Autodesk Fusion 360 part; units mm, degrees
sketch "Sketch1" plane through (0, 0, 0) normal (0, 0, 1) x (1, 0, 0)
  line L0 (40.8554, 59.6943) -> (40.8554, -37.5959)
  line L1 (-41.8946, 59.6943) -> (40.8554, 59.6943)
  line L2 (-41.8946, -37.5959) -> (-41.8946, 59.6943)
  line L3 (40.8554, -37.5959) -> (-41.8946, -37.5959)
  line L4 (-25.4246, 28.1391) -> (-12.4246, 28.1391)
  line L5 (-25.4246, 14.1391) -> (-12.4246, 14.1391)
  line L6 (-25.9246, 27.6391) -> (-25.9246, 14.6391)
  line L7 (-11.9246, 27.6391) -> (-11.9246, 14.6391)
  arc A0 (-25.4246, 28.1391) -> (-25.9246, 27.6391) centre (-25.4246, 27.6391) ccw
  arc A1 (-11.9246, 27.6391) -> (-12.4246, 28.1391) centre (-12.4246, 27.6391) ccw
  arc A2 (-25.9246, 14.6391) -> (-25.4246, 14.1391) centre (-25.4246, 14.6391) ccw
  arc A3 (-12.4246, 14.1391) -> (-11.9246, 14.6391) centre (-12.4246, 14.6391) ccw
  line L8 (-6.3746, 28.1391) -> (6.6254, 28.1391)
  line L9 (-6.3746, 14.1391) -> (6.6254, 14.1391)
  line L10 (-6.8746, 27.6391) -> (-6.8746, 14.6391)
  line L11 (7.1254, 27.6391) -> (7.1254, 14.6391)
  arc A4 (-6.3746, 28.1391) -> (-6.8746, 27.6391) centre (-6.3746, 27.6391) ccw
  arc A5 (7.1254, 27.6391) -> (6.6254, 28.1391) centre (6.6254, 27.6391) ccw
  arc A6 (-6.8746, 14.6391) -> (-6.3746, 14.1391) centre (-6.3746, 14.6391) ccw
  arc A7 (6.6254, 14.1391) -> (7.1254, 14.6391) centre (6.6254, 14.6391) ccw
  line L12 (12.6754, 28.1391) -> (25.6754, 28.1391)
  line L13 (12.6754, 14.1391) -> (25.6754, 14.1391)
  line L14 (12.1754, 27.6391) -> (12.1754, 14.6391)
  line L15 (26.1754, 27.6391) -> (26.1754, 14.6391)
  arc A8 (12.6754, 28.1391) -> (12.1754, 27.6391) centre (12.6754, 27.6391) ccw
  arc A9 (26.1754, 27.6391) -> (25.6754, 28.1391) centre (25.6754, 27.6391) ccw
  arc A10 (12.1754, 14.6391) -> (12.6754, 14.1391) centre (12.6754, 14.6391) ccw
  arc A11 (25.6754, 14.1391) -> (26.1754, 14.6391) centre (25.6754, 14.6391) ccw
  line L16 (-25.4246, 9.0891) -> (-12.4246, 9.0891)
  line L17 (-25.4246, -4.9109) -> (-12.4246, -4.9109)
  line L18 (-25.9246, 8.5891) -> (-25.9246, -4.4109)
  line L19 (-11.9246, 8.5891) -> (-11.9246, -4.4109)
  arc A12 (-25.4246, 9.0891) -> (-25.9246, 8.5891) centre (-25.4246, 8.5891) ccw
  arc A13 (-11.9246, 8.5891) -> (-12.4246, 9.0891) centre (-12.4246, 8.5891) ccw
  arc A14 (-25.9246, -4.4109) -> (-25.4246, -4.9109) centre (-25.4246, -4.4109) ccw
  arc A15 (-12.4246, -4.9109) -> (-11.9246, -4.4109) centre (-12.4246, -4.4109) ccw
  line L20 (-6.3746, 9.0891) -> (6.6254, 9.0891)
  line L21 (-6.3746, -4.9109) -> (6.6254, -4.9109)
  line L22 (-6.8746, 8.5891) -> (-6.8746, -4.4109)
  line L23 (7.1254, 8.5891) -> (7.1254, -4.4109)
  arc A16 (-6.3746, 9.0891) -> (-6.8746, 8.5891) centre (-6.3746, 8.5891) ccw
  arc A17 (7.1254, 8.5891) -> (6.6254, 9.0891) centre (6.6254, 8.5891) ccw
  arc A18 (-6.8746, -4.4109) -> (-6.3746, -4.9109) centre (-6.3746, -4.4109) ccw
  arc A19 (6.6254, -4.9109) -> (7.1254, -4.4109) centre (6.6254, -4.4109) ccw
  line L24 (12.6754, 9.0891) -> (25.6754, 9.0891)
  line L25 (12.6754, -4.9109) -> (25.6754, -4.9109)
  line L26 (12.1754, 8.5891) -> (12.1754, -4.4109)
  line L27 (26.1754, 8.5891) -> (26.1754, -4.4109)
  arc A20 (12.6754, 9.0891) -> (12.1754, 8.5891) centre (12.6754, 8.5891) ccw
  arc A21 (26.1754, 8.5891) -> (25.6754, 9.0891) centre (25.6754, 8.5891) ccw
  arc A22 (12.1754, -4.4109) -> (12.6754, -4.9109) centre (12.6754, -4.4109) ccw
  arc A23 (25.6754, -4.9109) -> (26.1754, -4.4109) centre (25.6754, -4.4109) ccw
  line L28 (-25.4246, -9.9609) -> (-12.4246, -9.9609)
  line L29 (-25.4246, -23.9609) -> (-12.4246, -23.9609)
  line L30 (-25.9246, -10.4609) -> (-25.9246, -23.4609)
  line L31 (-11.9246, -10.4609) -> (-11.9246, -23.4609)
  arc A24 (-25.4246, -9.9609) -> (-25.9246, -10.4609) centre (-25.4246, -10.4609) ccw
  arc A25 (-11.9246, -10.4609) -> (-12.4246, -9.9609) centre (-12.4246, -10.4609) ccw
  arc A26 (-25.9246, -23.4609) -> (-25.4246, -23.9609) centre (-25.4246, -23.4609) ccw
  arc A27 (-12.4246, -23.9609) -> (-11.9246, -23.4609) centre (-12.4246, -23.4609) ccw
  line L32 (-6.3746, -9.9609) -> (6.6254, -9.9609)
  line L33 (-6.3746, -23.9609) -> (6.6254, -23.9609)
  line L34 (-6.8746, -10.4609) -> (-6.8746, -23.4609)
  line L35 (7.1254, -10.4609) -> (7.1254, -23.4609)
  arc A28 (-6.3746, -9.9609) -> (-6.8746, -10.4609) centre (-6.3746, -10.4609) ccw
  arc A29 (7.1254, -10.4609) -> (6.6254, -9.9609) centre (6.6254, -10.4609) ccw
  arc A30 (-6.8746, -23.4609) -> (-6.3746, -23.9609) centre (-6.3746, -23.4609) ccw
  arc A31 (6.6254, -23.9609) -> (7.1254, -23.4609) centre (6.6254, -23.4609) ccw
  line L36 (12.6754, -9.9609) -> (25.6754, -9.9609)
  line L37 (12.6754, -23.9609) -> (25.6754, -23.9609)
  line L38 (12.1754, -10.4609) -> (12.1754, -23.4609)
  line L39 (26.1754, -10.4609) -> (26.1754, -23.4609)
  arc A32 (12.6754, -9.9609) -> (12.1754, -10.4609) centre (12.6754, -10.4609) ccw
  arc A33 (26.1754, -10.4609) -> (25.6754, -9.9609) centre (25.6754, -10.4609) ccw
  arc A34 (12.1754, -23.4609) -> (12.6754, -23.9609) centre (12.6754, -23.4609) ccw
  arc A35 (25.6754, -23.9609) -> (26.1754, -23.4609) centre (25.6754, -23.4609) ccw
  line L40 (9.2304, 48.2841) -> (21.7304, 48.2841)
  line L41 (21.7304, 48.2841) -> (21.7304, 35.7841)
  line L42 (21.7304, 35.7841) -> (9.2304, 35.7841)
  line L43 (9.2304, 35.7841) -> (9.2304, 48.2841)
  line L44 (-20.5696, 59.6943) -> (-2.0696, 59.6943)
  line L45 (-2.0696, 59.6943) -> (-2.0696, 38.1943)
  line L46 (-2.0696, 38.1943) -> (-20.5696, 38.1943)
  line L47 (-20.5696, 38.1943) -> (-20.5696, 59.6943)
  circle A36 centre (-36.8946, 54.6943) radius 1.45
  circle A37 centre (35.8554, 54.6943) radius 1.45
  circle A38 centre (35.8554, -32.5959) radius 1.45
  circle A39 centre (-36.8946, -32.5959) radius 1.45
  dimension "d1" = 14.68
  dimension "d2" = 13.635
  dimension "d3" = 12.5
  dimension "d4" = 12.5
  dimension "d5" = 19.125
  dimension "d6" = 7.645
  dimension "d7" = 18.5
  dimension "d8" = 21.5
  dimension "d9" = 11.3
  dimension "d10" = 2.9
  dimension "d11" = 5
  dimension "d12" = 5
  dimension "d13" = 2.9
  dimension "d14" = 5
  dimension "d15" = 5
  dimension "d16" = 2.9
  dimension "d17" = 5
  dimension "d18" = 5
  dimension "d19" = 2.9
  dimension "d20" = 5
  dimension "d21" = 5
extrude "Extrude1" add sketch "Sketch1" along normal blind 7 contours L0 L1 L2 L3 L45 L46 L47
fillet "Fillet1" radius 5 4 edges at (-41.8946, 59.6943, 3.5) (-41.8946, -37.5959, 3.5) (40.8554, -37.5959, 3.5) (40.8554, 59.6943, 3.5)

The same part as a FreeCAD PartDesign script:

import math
import FreeCAD as App
import Part
import Sketcher


def edges_at(feature, points):
    """Names of the edges that pass closest to the given points."""
    edges = feature.Shape.Edges
    near = lambda p: min(range(len(edges)), key=lambda i: edges[i].distToShape(Part.Vertex(*p))[0])
    return sorted({f"Edge{near(p) + 1}" for p in points})

doc = App.newDocument("Part")
body = doc.addObject("PartDesign::Body", "Body")

sketch1 = body.newObject("Sketcher::SketchObject", "Sketch")
sketch1.AttachmentSupport = (doc.getObject("XY_Plane"), [""])
sketch1.MapMode = "FlatFace"
sketch1.addGeometry(Part.LineSegment(App.Vector(40.9, -37.6, 0), App.Vector(40.9, 59.7, 0)), False)
sketch1.addGeometry(Part.LineSegment(App.Vector(40.9, 59.7, 0), App.Vector(-2.1, 59.7, 0)), False)
sketch1.addGeometry(Part.LineSegment(App.Vector(-2.1, 59.7, 0), App.Vector(-2.1, 38.2, 0)), False)
sketch1.addGeometry(Part.LineSegment(App.Vector(-2.1, 38.2, 0), App.Vector(-20.6, 38.2, 0)), False)
sketch1.addGeometry(Part.LineSegment(App.Vector(-20.6, 38.2, 0), App.Vector(-20.6, 59.7, 0)), False)
sketch1.addGeometry(Part.LineSegment(App.Vector(-20.6, 59.7, 0), App.Vector(-41.9, 59.7, 0)), False)
sketch1.addGeometry(Part.LineSegment(App.Vector(-41.9, 59.7, 0), App.Vector(-41.9, -37.6, 0)), False)
sketch1.addGeometry(Part.LineSegment(App.Vector(-41.9, -37.6, 0), App.Vector(40.9, -37.6, 0)), False)
sketch1.addGeometry(Part.Circle(App.Vector(-36.9, -32.6, 0), App.Vector(0, 0, 1), 1.4), False)
sketch1.addGeometry(Part.ArcOfCircle(Part.Circle(App.Vector(-25.4, -10.5, 0), App.Vector(0, 0, 1), 0.5), math.radians(90), math.radians(180)), False)
sketch1.addGeometry(Part.LineSegment(App.Vector(-25.4, -10, 0), App.Vector(-12.4, -10, 0)), False)
sketch1.addGeometry(Part.ArcOfCircle(Part.Circle(App.Vector(-12.4, -10.5, 0), App.Vector(0, 0, 1), 0.5), math.radians(0), math.radians(90)), False)
sketch1.addGeometry(Part.LineSegment(App.Vector(-11.9, -10.5, 0), App.Vector(-11.9, -23.5, 0)), False)
sketch1.addGeometry(Part.ArcOfCircle(Part.Circle(App.Vector(-12.4, -23.5, 0), App.Vector(0, 0, 1), 0.5), math.radians(-90), math.radians(0)), False)
sketch1.addGeometry(Part.LineSegment(App.Vector(-12.4, -24, 0), App.Vector(-25.4, -24, 0)), False)
sketch1.addGeometry(Part.ArcOfCircle(Part.Circle(App.Vector(-25.4, -23.5, 0), App.Vector(0, 0, 1), 0.5), math.radians(180), math.radians(270)), False)
sketch1.addGeometry(Part.LineSegment(App.Vector(-25.9, -23.5, 0), App.Vector(-25.9, -10.5, 0)), False)
sketch1.addGeometry(Part.ArcOfCircle(Part.Circle(App.Vector(-25.4, 8.6, 0), App.Vector(0, 0, 1), 0.5), math.radians(90), math.radians(180)), False)
sketch1.addGeometry(Part.LineSegment(App.Vector(-25.4, 9.1, 0), App.Vector(-12.4, 9.1, 0)), False)
sketch1.addGeometry(Part.ArcOfCircle(Part.Circle(App.Vector(-12.4, 8.6, 0), App.Vector(0, 0, 1), 0.5), math.radians(0), math.radians(90)), False)
sketch1.addGeometry(Part.LineSegment(App.Vector(-11.9, 8.6, 0), App.Vector(-11.9, -4.4, 0)), False)
sketch1.addGeometry(Part.ArcOfCircle(Part.Circle(App.Vector(-12.4, -4.4, 0), App.Vector(0, 0, 1), 0.5), math.radians(-90), math.radians(0)), False)
sketch1.addGeometry(Part.LineSegment(App.Vector(-12.4, -4.9, 0), App.Vector(-25.4, -4.9, 0)), False)
sketch1.addGeometry(Part.ArcOfCircle(Part.Circle(App.Vector(-25.4, -4.4, 0), App.Vector(0, 0, 1), 0.5), math.radians(180), math.radians(270)), False)
sketch1.addGeometry(Part.LineSegment(App.Vector(-25.9, -4.4, 0), App.Vector(-25.9, 8.6, 0)), False)
sketch1.addGeometry(Part.ArcOfCircle(Part.Circle(App.Vector(-6.4, -10.5, 0), App.Vector(0, 0, 1), 0.5), math.radians(90), math.radians(180)), False)
sketch1.addGeometry(Part.LineSegment(App.Vector(-6.4, -10, 0), App.Vector(6.6, -10, 0)), False)
sketch1.addGeometry(Part.ArcOfCircle(Part.Circle(App.Vector(6.6, -10.5, 0), App.Vector(0, 0, 1), 0.5), math.radians(0), math.radians(90)), False)
sketch1.addGeometry(Part.LineSegment(App.Vector(7.1, -10.5, 0), App.Vector(7.1, -23.5, 0)), False)
sketch1.addGeometry(Part.ArcOfCircle(Part.Circle(App.Vector(6.6, -23.5, 0), App.Vector(0, 0, 1), 0.5), math.radians(-90), math.radians(0)), False)
sketch1.addGeometry(Part.LineSegment(App.Vector(6.6, -24, 0), App.Vector(-6.4, -24, 0)), False)
sketch1.addGeometry(Part.ArcOfCircle(Part.Circle(App.Vector(-6.4, -23.5, 0), App.Vector(0, 0, 1), 0.5), math.radians(180), math.radians(270)), False)
sketch1.addGeometry(Part.LineSegment(App.Vector(-6.9, -23.5, 0), App.Vector(-6.9, -10.5, 0)), False)
sketch1.addGeometry(Part.ArcOfCircle(Part.Circle(App.Vector(12.7, -10.5, 0), App.Vector(0, 0, 1), 0.5), math.radians(90), math.radians(180)), False)
sketch1.addGeometry(Part.LineSegment(App.Vector(12.7, -10, 0), App.Vector(25.7, -10, 0)), False)
sketch1.addGeometry(Part.ArcOfCircle(Part.Circle(App.Vector(25.7, -10.5, 0), App.Vector(0, 0, 1), 0.5), math.radians(0), math.radians(90)), False)
sketch1.addGeometry(Part.LineSegment(App.Vector(26.2, -10.5, 0), App.Vector(26.2, -23.5, 0)), False)
sketch1.addGeometry(Part.ArcOfCircle(Part.Circle(App.Vector(25.7, -23.5, 0), App.Vector(0, 0, 1), 0.5), math.radians(-90), math.radians(0)), False)
sketch1.addGeometry(Part.LineSegment(App.Vector(25.7, -24, 0), App.Vector(12.7, -24, 0)), False)
sketch1.addGeometry(Part.ArcOfCircle(Part.Circle(App.Vector(12.7, -23.5, 0), App.Vector(0, 0, 1), 0.5), math.radians(180), math.radians(270)), False)
sketch1.addGeometry(Part.LineSegment(App.Vector(12.2, -23.5, 0), App.Vector(12.2, -10.5, 0)), False)
sketch1.addGeometry(Part.Circle(App.Vector(35.9, -32.6, 0), App.Vector(0, 0, 1), 1.4), False)
sketch1.addGeometry(Part.ArcOfCircle(Part.Circle(App.Vector(-6.4, 8.6, 0), App.Vector(0, 0, 1), 0.5), math.radians(90), math.radians(180)), False)
sketch1.addGeometry(Part.LineSegment(App.Vector(-6.4, 9.1, 0), App.Vector(6.6, 9.1, 0)), False)
sketch1.addGeometry(Part.ArcOfCircle(Part.Circle(App.Vector(6.6, 8.6, 0), App.Vector(0, 0, 1), 0.5), math.radians(0), math.radians(90)), False)
sketch1.addGeometry(Part.LineSegment(App.Vector(7.1, 8.6, 0), App.Vector(7.1, -4.4, 0)), False)
sketch1.addGeometry(Part.ArcOfCircle(Part.Circle(App.Vector(6.6, -4.4, 0), App.Vector(0, 0, 1), 0.5), math.radians(-90), math.radians(0)), False)
sketch1.addGeometry(Part.LineSegment(App.Vector(6.6, -4.9, 0), App.Vector(-6.4, -4.9, 0)), False)
sketch1.addGeometry(Part.ArcOfCircle(Part.Circle(App.Vector(-6.4, -4.4, 0), App.Vector(0, 0, 1), 0.5), math.radians(180), math.radians(270)), False)
sketch1.addGeometry(Part.LineSegment(App.Vector(-6.9, -4.4, 0), App.Vector(-6.9, 8.6, 0)), False)
sketch1.addGeometry(Part.ArcOfCircle(Part.Circle(App.Vector(12.7, 8.6, 0), App.Vector(0, 0, 1), 0.5), math.radians(90), math.radians(180)), False)
sketch1.addGeometry(Part.LineSegment(App.Vector(12.7, 9.1, 0), App.Vector(25.7, 9.1, 0)), False)
sketch1.addGeometry(Part.ArcOfCircle(Part.Circle(App.Vector(25.7, 8.6, 0), App.Vector(0, 0, 1), 0.5), math.radians(0), math.radians(90)), False)
sketch1.addGeometry(Part.LineSegment(App.Vector(26.2, 8.6, 0), App.Vector(26.2, -4.4, 0)), False)
sketch1.addGeometry(Part.ArcOfCircle(Part.Circle(App.Vector(25.7, -4.4, 0), App.Vector(0, 0, 1), 0.5), math.radians(-90), math.radians(0)), False)
sketch1.addGeometry(Part.LineSegment(App.Vector(25.7, -4.9, 0), App.Vector(12.7, -4.9, 0)), False)
sketch1.addGeometry(Part.ArcOfCircle(Part.Circle(App.Vector(12.7, -4.4, 0), App.Vector(0, 0, 1), 0.5), math.radians(180), math.radians(270)), False)
sketch1.addGeometry(Part.LineSegment(App.Vector(12.2, -4.4, 0), App.Vector(12.2, 8.6, 0)), False)
sketch1.addGeometry(Part.ArcOfCircle(Part.Circle(App.Vector(-25.4, 27.6, 0), App.Vector(0, 0, 1), 0.5), math.radians(90), math.radians(180)), False)
sketch1.addGeometry(Part.LineSegment(App.Vector(-25.4, 28.1, 0), App.Vector(-12.4, 28.1, 0)), False)
sketch1.addGeometry(Part.ArcOfCircle(Part.Circle(App.Vector(-12.4, 27.6, 0), App.Vector(0, 0, 1), 0.5), math.radians(0), math.radians(90)), False)
sketch1.addGeometry(Part.LineSegment(App.Vector(-11.9, 27.6, 0), App.Vector(-11.9, 14.6, 0)), False)
sketch1.addGeometry(Part.ArcOfCircle(Part.Circle(App.Vector(-12.4, 14.6, 0), App.Vector(0, 0, 1), 0.5), math.radians(-90), math.radians(0)), False)
sketch1.addGeometry(Part.LineSegment(App.Vector(-12.4, 14.1, 0), App.Vector(-25.4, 14.1, 0)), False)
sketch1.addGeometry(Part.ArcOfCircle(Part.Circle(App.Vector(-25.4, 14.6, 0), App.Vector(0, 0, 1), 0.5), math.radians(180), math.radians(270)), False)
sketch1.addGeometry(Part.LineSegment(App.Vector(-25.9, 14.6, 0), App.Vector(-25.9, 27.6, 0)), False)
sketch1.addGeometry(Part.Circle(App.Vector(-36.9, 54.7, 0), App.Vector(0, 0, 1), 1.4), False)
sketch1.addGeometry(Part.ArcOfCircle(Part.Circle(App.Vector(-6.4, 27.6, 0), App.Vector(0, 0, 1), 0.5), math.radians(90), math.radians(180)), False)
sketch1.addGeometry(Part.LineSegment(App.Vector(-6.4, 28.1, 0), App.Vector(6.6, 28.1, 0)), False)
sketch1.addGeometry(Part.ArcOfCircle(Part.Circle(App.Vector(6.6, 27.6, 0), App.Vector(0, 0, 1), 0.5), math.radians(0), math.radians(90)), False)
sketch1.addGeometry(Part.LineSegment(App.Vector(7.1, 27.6, 0), App.Vector(7.1, 14.6, 0)), False)
sketch1.addGeometry(Part.ArcOfCircle(Part.Circle(App.Vector(6.6, 14.6, 0), App.Vector(0, 0, 1), 0.5), math.radians(-90), math.radians(0)), False)
sketch1.addGeometry(Part.LineSegment(App.Vector(6.6, 14.1, 0), App.Vector(-6.4, 14.1, 0)), False)
sketch1.addGeometry(Part.ArcOfCircle(Part.Circle(App.Vector(-6.4, 14.6, 0), App.Vector(0, 0, 1), 0.5), math.radians(180), math.radians(270)), False)
sketch1.addGeometry(Part.LineSegment(App.Vector(-6.9, 14.6, 0), App.Vector(-6.9, 27.6, 0)), False)
sketch1.addGeometry(Part.ArcOfCircle(Part.Circle(App.Vector(12.7, 27.6, 0), App.Vector(0, 0, 1), 0.5), math.radians(90), math.radians(180)), False)
sketch1.addGeometry(Part.LineSegment(App.Vector(12.7, 28.1, 0), App.Vector(25.7, 28.1, 0)), False)
sketch1.addGeometry(Part.ArcOfCircle(Part.Circle(App.Vector(25.7, 27.6, 0), App.Vector(0, 0, 1), 0.5), math.radians(0), math.radians(90)), False)
sketch1.addGeometry(Part.LineSegment(App.Vector(26.2, 27.6, 0), App.Vector(26.2, 14.6, 0)), False)
sketch1.addGeometry(Part.ArcOfCircle(Part.Circle(App.Vector(25.7, 14.6, 0), App.Vector(0, 0, 1), 0.5), math.radians(-90), math.radians(0)), False)
sketch1.addGeometry(Part.LineSegment(App.Vector(25.7, 14.1, 0), App.Vector(12.7, 14.1, 0)), False)
sketch1.addGeometry(Part.ArcOfCircle(Part.Circle(App.Vector(12.7, 14.6, 0), App.Vector(0, 0, 1), 0.5), math.radians(180), math.radians(270)), False)
sketch1.addGeometry(Part.LineSegment(App.Vector(12.2, 14.6, 0), App.Vector(12.2, 27.6, 0)), False)
sketch1.addGeometry(Part.LineSegment(App.Vector(9.2, 35.8, 0), App.Vector(9.2, 48.3, 0)), False)
sketch1.addGeometry(Part.LineSegment(App.Vector(9.2, 48.3, 0), App.Vector(21.7, 48.3, 0)), False)
sketch1.addGeometry(Part.LineSegment(App.Vector(21.7, 48.3, 0), App.Vector(21.7, 35.8, 0)), False)
sketch1.addGeometry(Part.LineSegment(App.Vector(21.7, 35.8, 0), App.Vector(9.2, 35.8, 0)), False)
sketch1.addGeometry(Part.Circle(App.Vector(35.9, 54.7, 0), App.Vector(0, 0, 1), 1.4), False)
sketch1.addConstraint(Sketcher.Constraint("Coincident", 0, 2, 1, 1))
sketch1.addConstraint(Sketcher.Constraint("Coincident", 1, 2, 2, 1))
sketch1.addConstraint(Sketcher.Constraint("Coincident", 2, 2, 3, 1))
sketch1.addConstraint(Sketcher.Constraint("Coincident", 3, 2, 4, 1))
sketch1.addConstraint(Sketcher.Constraint("Coincident", 4, 2, 5, 1))
sketch1.addConstraint(Sketcher.Constraint("Coincident", 5, 2, 6, 1))
sketch1.addConstraint(Sketcher.Constraint("Coincident", 6, 2, 7, 1))
sketch1.addConstraint(Sketcher.Constraint("Coincident", 7, 2, 0, 1))
sketch1.addConstraint(Sketcher.Constraint("Tangent", 9, 1, 10, 1))
sketch1.addConstraint(Sketcher.Constraint("Tangent", 10, 2, 11, 2))
sketch1.addConstraint(Sketcher.Constraint("Tangent", 11, 1, 12, 1))
sketch1.addConstraint(Sketcher.Constraint("Tangent", 12, 2, 13, 2))
sketch1.addConstraint(Sketcher.Constraint("Tangent", 13, 1, 14, 1))
sketch1.addConstraint(Sketcher.Constraint("Tangent", 14, 2, 15, 2))
sketch1.addConstraint(Sketcher.Constraint("Tangent", 15, 1, 16, 1))
sketch1.addConstraint(Sketcher.Constraint("Tangent", 16, 2, 9, 2))
sketch1.addConstraint(Sketcher.Constraint("Tangent", 17, 1, 18, 1))
sketch1.addConstraint(Sketcher.Constraint("Tangent", 18, 2, 19, 2))
sketch1.addConstraint(Sketcher.Constraint("Tangent", 19, 1, 20, 1))
sketch1.addConstraint(Sketcher.Constraint("Tangent", 20, 2, 21, 2))
sketch1.addConstraint(Sketcher.Constraint("Tangent", 21, 1, 22, 1))
sketch1.addConstraint(Sketcher.Constraint("Tangent", 22, 2, 23, 2))
sketch1.addConstraint(Sketcher.Constraint("Tangent", 23, 1, 24, 1))
sketch1.addConstraint(Sketcher.Constraint("Tangent", 24, 2, 17, 2))
sketch1.addConstraint(Sketcher.Constraint("Tangent", 25, 1, 26, 1))
sketch1.addConstraint(Sketcher.Constraint("Tangent", 26, 2, 27, 2))
sketch1.addConstraint(Sketcher.Constraint("Tangent", 27, 1, 28, 1))
sketch1.addConstraint(Sketcher.Constraint("Tangent", 28, 2, 29, 2))
sketch1.addConstraint(Sketcher.Constraint("Tangent", 29, 1, 30, 1))
sketch1.addConstraint(Sketcher.Constraint("Tangent", 30, 2, 31, 2))
sketch1.addConstraint(Sketcher.Constraint("Tangent", 31, 1, 32, 1))
sketch1.addConstraint(Sketcher.Constraint("Tangent", 32, 2, 25, 2))
sketch1.addConstraint(Sketcher.Constraint("Tangent", 33, 1, 34, 1))
sketch1.addConstraint(Sketcher.Constraint("Tangent", 34, 2, 35, 2))
sketch1.addConstraint(Sketcher.Constraint("Tangent", 35, 1, 36, 1))
sketch1.addConstraint(Sketcher.Constraint("Tangent", 36, 2, 37, 2))
sketch1.addConstraint(Sketcher.Constraint("Tangent", 37, 1, 38, 1))
sketch1.addConstraint(Sketcher.Constraint("Tangent", 38, 2, 39, 2))
sketch1.addConstraint(Sketcher.Constraint("Tangent", 39, 1, 40, 1))
sketch1.addConstraint(Sketcher.Constraint("Tangent", 40, 2, 33, 2))
sketch1.addConstraint(Sketcher.Constraint("Tangent", 42, 1, 43, 1))
sketch1.addConstraint(Sketcher.Constraint("Tangent", 43, 2, 44, 2))
sketch1.addConstraint(Sketcher.Constraint("Tangent", 44, 1, 45, 1))
sketch1.addConstraint(Sketcher.Constraint("Tangent", 45, 2, 46, 2))
sketch1.addConstraint(Sketcher.Constraint("Tangent", 46, 1, 47, 1))
sketch1.addConstraint(Sketcher.Constraint("Tangent", 47, 2, 48, 2))
sketch1.addConstraint(Sketcher.Constraint("Tangent", 48, 1, 49, 1))
sketch1.addConstraint(Sketcher.Constraint("Tangent", 49, 2, 42, 2))
sketch1.addConstraint(Sketcher.Constraint("Tangent", 50, 1, 51, 1))
sketch1.addConstraint(Sketcher.Constraint("Tangent", 51, 2, 52, 2))
sketch1.addConstraint(Sketcher.Constraint("Tangent", 52, 1, 53, 1))
sketch1.addConstraint(Sketcher.Constraint("Tangent", 53, 2, 54, 2))
sketch1.addConstraint(Sketcher.Constraint("Tangent", 54, 1, 55, 1))
sketch1.addConstraint(Sketcher.Constraint("Tangent", 55, 2, 56, 2))
sketch1.addConstraint(Sketcher.Constraint("Tangent", 56, 1, 57, 1))
sketch1.addConstraint(Sketcher.Constraint("Tangent", 57, 2, 50, 2))
sketch1.addConstraint(Sketcher.Constraint("Tangent", 58, 1, 59, 1))
sketch1.addConstraint(Sketcher.Constraint("Tangent", 59, 2, 60, 2))
sketch1.addConstraint(Sketcher.Constraint("Tangent", 60, 1, 61, 1))
sketch1.addConstraint(Sketcher.Constraint("Tangent", 61, 2, 62, 2))
sketch1.addConstraint(Sketcher.Constraint("Tangent", 62, 1, 63, 1))
sketch1.addConstraint(Sketcher.Constraint("Tangent", 63, 2, 64, 2))
sketch1.addConstraint(Sketcher.Constraint("Tangent", 64, 1, 65, 1))
sketch1.addConstraint(Sketcher.Constraint("Tangent", 65, 2, 58, 2))
sketch1.addConstraint(Sketcher.Constraint("Tangent", 67, 1, 68, 1))
sketch1.addConstraint(Sketcher.Constraint("Tangent", 68, 2, 69, 2))
sketch1.addConstraint(Sketcher.Constraint("Tangent", 69, 1, 70, 1))
sketch1.addConstraint(Sketcher.Constraint("Tangent", 70, 2, 71, 2))
sketch1.addConstraint(Sketcher.Constraint("Tangent", 71, 1, 72, 1))
sketch1.addConstraint(Sketcher.Constraint("Tangent", 72, 2, 73, 2))
sketch1.addConstraint(Sketcher.Constraint("Tangent", 73, 1, 74, 1))
sketch1.addConstraint(Sketcher.Constraint("Tangent", 74, 2, 67, 2))
sketch1.addConstraint(Sketcher.Constraint("Tangent", 75, 1, 76, 1))
sketch1.addConstraint(Sketcher.Constraint("Tangent", 76, 2, 77, 2))
sketch1.addConstraint(Sketcher.Constraint("Tangent", 77, 1, 78, 1))
sketch1.addConstraint(Sketcher.Constraint("Tangent", 78, 2, 79, 2))
sketch1.addConstraint(Sketcher.Constraint("Tangent", 79, 1, 80, 1))
sketch1.addConstraint(Sketcher.Constraint("Tangent", 80, 2, 81, 2))
sketch1.addConstraint(Sketcher.Constraint("Tangent", 81, 1, 82, 1))
sketch1.addConstraint(Sketcher.Constraint("Tangent", 82, 2, 75, 2))
sketch1.addConstraint(Sketcher.Constraint("Coincident", 83, 2, 84, 1))
sketch1.addConstraint(Sketcher.Constraint("Coincident", 84, 2, 85, 1))
sketch1.addConstraint(Sketcher.Constraint("Coincident", 85, 2, 86, 1))
sketch1.addConstraint(Sketcher.Constraint("Coincident", 86, 2, 83, 1))
sketch1.addConstraint(Sketcher.Constraint("Vertical", 0))
sketch1.addConstraint(Sketcher.Constraint("Horizontal", 1))
sketch1.addConstraint(Sketcher.Constraint("Vertical", 2))
sketch1.addConstraint(Sketcher.Constraint("Horizontal", 3))
sketch1.addConstraint(Sketcher.Constraint("Vertical", 4))
sketch1.addConstraint(Sketcher.Constraint("Horizontal", 5))
sketch1.addConstraint(Sketcher.Constraint("Vertical", 6))
sketch1.addConstraint(Sketcher.Constraint("Horizontal", 7))
sketch1.addConstraint(Sketcher.Constraint("Horizontal", 10))
sketch1.addConstraint(Sketcher.Constraint("Vertical", 12))
sketch1.addConstraint(Sketcher.Constraint("Horizontal", 14))
sketch1.addConstraint(Sketcher.Constraint("Vertical", 16))
sketch1.addConstraint(Sketcher.Constraint("Horizontal", 18))
sketch1.addConstraint(Sketcher.Constraint("Vertical", 20))
sketch1.addConstraint(Sketcher.Constraint("Horizontal", 22))
sketch1.addConstraint(Sketcher.Constraint("Vertical", 24))
sketch1.addConstraint(Sketcher.Constraint("Horizontal", 26))
sketch1.addConstraint(Sketcher.Constraint("Vertical", 28))
sketch1.addConstraint(Sketcher.Constraint("Horizontal", 30))
sketch1.addConstraint(Sketcher.Constraint("Vertical", 32))
sketch1.addConstraint(Sketcher.Constraint("Horizontal", 34))
sketch1.addConstraint(Sketcher.Constraint("Vertical", 36))
sketch1.addConstraint(Sketcher.Constraint("Horizontal", 38))
sketch1.addConstraint(Sketcher.Constraint("Vertical", 40))
sketch1.addConstraint(Sketcher.Constraint("Horizontal", 43))
sketch1.addConstraint(Sketcher.Constraint("Vertical", 45))
sketch1.addConstraint(Sketcher.Constraint("Horizontal", 47))
sketch1.addConstraint(Sketcher.Constraint("Vertical", 49))
sketch1.addConstraint(Sketcher.Constraint("Horizontal", 51))
sketch1.addConstraint(Sketcher.Constraint("Vertical", 53))
sketch1.addConstraint(Sketcher.Constraint("Horizontal", 55))
sketch1.addConstraint(Sketcher.Constraint("Vertical", 57))
sketch1.addConstraint(Sketcher.Constraint("Horizontal", 59))
sketch1.addConstraint(Sketcher.Constraint("Vertical", 61))
sketch1.addConstraint(Sketcher.Constraint("Horizontal", 63))
sketch1.addConstraint(Sketcher.Constraint("Vertical", 65))
sketch1.addConstraint(Sketcher.Constraint("Horizontal", 68))
sketch1.addConstraint(Sketcher.Constraint("Vertical", 70))
sketch1.addConstraint(Sketcher.Constraint("Horizontal", 72))
sketch1.addConstraint(Sketcher.Constraint("Vertical", 74))
sketch1.addConstraint(Sketcher.Constraint("Horizontal", 76))
sketch1.addConstraint(Sketcher.Constraint("Vertical", 78))
sketch1.addConstraint(Sketcher.Constraint("Horizontal", 80))
sketch1.addConstraint(Sketcher.Constraint("Vertical", 82))
sketch1.addConstraint(Sketcher.Constraint("Vertical", 83))
sketch1.addConstraint(Sketcher.Constraint("Horizontal", 84))
sketch1.addConstraint(Sketcher.Constraint("Vertical", 85))
sketch1.addConstraint(Sketcher.Constraint("Horizontal", 86))
sketch1.addConstraint(Sketcher.Constraint("Equal", 9, 11))
sketch1.addConstraint(Sketcher.Constraint("Equal", 11, 13))
sketch1.addConstraint(Sketcher.Constraint("Equal", 13, 15))
sketch1.addConstraint(Sketcher.Constraint("Equal", 15, 17))
sketch1.addConstraint(Sketcher.Constraint("Equal", 17, 19))
sketch1.addConstraint(Sketcher.Constraint("Equal", 19, 21))
sketch1.addConstraint(Sketcher.Constraint("Equal", 21, 23))
sketch1.addConstraint(Sketcher.Constraint("Equal", 23, 25))
sketch1.addConstraint(Sketcher.Constraint("Equal", 25, 27))
sketch1.addConstraint(Sketcher.Constraint("Equal", 27, 29))
sketch1.addConstraint(Sketcher.Constraint("Equal", 29, 31))
sketch1.addConstraint(Sketcher.Constraint("Equal", 31, 33))
sketch1.addConstraint(Sketcher.Constraint("Equal", 33, 35))
sketch1.addConstraint(Sketcher.Constraint("Equal", 35, 37))
sketch1.addConstraint(Sketcher.Constraint("Equal", 37, 39))
sketch1.addConstraint(Sketcher.Constraint("Equal", 8, 41))
sketch1.addConstraint(Sketcher.Constraint("Equal", 39, 42))
sketch1.addConstraint(Sketcher.Constraint("Equal", 42, 44))
sketch1.addConstraint(Sketcher.Constraint("Equal", 44, 46))
sketch1.addConstraint(Sketcher.Constraint("Equal", 46, 48))
sketch1.addConstraint(Sketcher.Constraint("Equal", 48, 50))
sketch1.addConstraint(Sketcher.Constraint("Equal", 50, 52))
sketch1.addConstraint(Sketcher.Constraint("Equal", 52, 54))
sketch1.addConstraint(Sketcher.Constraint("Equal", 54, 56))
sketch1.addConstraint(Sketcher.Constraint("Equal", 56, 58))
sketch1.addConstraint(Sketcher.Constraint("Equal", 58, 60))
sketch1.addConstraint(Sketcher.Constraint("Equal", 60, 62))
sketch1.addConstraint(Sketcher.Constraint("Equal", 62, 64))
sketch1.addConstraint(Sketcher.Constraint("Equal", 41, 66))
sketch1.addConstraint(Sketcher.Constraint("Equal", 64, 67))
sketch1.addConstraint(Sketcher.Constraint("Equal", 67, 69))
sketch1.addConstraint(Sketcher.Constraint("Equal", 69, 71))
sketch1.addConstraint(Sketcher.Constraint("Equal", 71, 73))
sketch1.addConstraint(Sketcher.Constraint("Equal", 73, 75))
sketch1.addConstraint(Sketcher.Constraint("Equal", 75, 77))
sketch1.addConstraint(Sketcher.Constraint("Equal", 77, 79))
sketch1.addConstraint(Sketcher.Constraint("Equal", 79, 81))
sketch1.addConstraint(Sketcher.Constraint("Equal", 66, 87))
sketch1.addConstraint(Sketcher.Constraint("Horizontal", 11, 3, 25, 3))
sketch1.addConstraint(Sketcher.Constraint("Horizontal", 15, 3, 29, 3))
sketch1.addConstraint(Sketcher.Constraint("Horizontal", 27, 3, 33, 3))
sketch1.addConstraint(Sketcher.Constraint("Horizontal", 31, 3, 37, 3))
sketch1.addConstraint(Sketcher.Constraint("Horizontal", 8, 3, 41, 3))
sketch1.addConstraint(Sketcher.Constraint("Horizontal", 19, 3, 42, 3))
sketch1.addConstraint(Sketcher.Constraint("Horizontal", 23, 3, 46, 3))
sketch1.addConstraint(Sketcher.Constraint("Horizontal", 44, 3, 50, 3))
sketch1.addConstraint(Sketcher.Constraint("Horizontal", 48, 3, 54, 3))
sketch1.addConstraint(Sketcher.Constraint("Horizontal", 60, 3, 67, 3))
sketch1.addConstraint(Sketcher.Constraint("Horizontal", 64, 3, 71, 3))
sketch1.addConstraint(Sketcher.Constraint("Horizontal", 69, 3, 75, 3))
sketch1.addConstraint(Sketcher.Constraint("Horizontal", 73, 3, 79, 3))
sketch1.addConstraint(Sketcher.Constraint("Horizontal", 66, 3, 87, 3))
sketch1.addConstraint(Sketcher.Constraint("Horizontal", 1, 2, 4, 2))
sketch1.addConstraint(Sketcher.Constraint("Vertical", 15, 3, 17, 3))
sketch1.addConstraint(Sketcher.Constraint("Vertical", 13, 3, 19, 3))
sketch1.addConstraint(Sketcher.Constraint("Vertical", 31, 3, 42, 3))
sketch1.addConstraint(Sketcher.Constraint("Vertical", 29, 3, 44, 3))
sketch1.addConstraint(Sketcher.Constraint("Vertical", 39, 3, 50, 3))
sketch1.addConstraint(Sketcher.Constraint("Vertical", 37, 3, 52, 3))
sketch1.addConstraint(Sketcher.Constraint("Vertical", 23, 3, 58, 3))
sketch1.addConstraint(Sketcher.Constraint("Vertical", 21, 3, 60, 3))
sketch1.addConstraint(Sketcher.Constraint("Vertical", 8, 3, 66, 3))
sketch1.addConstraint(Sketcher.Constraint("Vertical", 48, 3, 67, 3))
sketch1.addConstraint(Sketcher.Constraint("Vertical", 46, 3, 69, 3))
sketch1.addConstraint(Sketcher.Constraint("Vertical", 56, 3, 75, 3))
sketch1.addConstraint(Sketcher.Constraint("Vertical", 54, 3, 77, 3))
sketch1.addConstraint(Sketcher.Constraint("Vertical", 41, 3, 87, 3))
sketch1.addConstraint(Sketcher.Constraint("Equal", 22, 26))
sketch1.addConstraint(Sketcher.Constraint("Equal", 30, 34))
sketch1.addConstraint(Sketcher.Constraint("Equal", 80, 12))
sketch1.addConstraint(Sketcher.Constraint("Equal", 16, 20))
sketch1.addConstraint(Sketcher.Constraint("Equal", 57, 61))
sketch1.addConstraint(Sketcher.Constraint("Equal", 86, 83))
sketch1.addConstraint(Sketcher.Constraint("Diameter", 8, 2.9))
sketch1.addConstraint(Sketcher.Constraint("DistanceX", 3, 2, 3, 1, 18.5))
sketch1.addConstraint(Sketcher.Constraint("DistanceX", 84, 1, 84, 2, 12.5))
sketch1.addConstraint(Sketcher.Constraint("DistanceY", 2, 2, 2, 1, 21.5))
sketch1.addConstraint(Sketcher.Constraint("Radius", 9, 0.5))
sketch1.addConstraint(Sketcher.Constraint("DistanceX", 10, 1, 10, 2, 13.0))
sketch1.addConstraint(Sketcher.Constraint("DistanceX", 7, 1, 7, 2, 82.75))
sketch1.addConstraint(Sketcher.Constraint("DistanceX", 1, 2, 1, 1, 42.925))
sketch1.addConstraint(Sketcher.Constraint("DistanceY", 0, 1, 0, 2, 97.2902))
sketch1.addConstraint(Sketcher.Constraint("DistanceY", 8, 3, -1, 1, 32.596))
sketch1.addConstraint(Sketcher.Constraint("DistanceY", 9, 3, -1, 1, 10.461))
sketch1.addConstraint(Sketcher.Constraint("DistanceY", -1, 1, 17, 3, 8.589))
sketch1.addConstraint(Sketcher.Constraint("DistanceY", -1, 1, 58, 3, 27.639))
sketch1.addConstraint(Sketcher.Constraint("DistanceY", 6, 2, -1, 1, 37.596))
sketch1.addConstraint(Sketcher.Constraint("DistanceY", -1, 1, 83, 2, 48.284))
sketch1.addConstraint(Sketcher.Constraint("DistanceX", 8, 3, -1, 1, 36.8946))
sketch1.addConstraint(Sketcher.Constraint("DistanceX", 9, 3, -1, 1, 25.4246))
sketch1.addConstraint(Sketcher.Constraint("DistanceX", 25, 3, -1, 1, 6.3746))
sketch1.addConstraint(Sketcher.Constraint("DistanceX", -1, 1, 33, 3, 12.6754))
sketch1.addConstraint(Sketcher.Constraint("DistanceX", -1, 1, 41, 3, 35.8554))
sketch1.addConstraint(Sketcher.Constraint("DistanceY", -1, 1, 66, 3, 54.6943))
sketch1.addConstraint(Sketcher.Constraint("DistanceX", -1, 1, 0, 2, 40.8554))
sketch1.addConstraint(Sketcher.Constraint("DistanceX", -1, 1, 83, 2, 9.2304))
pad1 = body.newObject("PartDesign::Pad", "Pad")
pad1.Profile = sketch1
pad1.Length = 7
doc.recompute()

fillet = body.newObject("PartDesign::Fillet", "Fillet")
fillet.Base = (pad1, edges_at(pad1, [
    (-41.895, 59.694, 3.5),
    (-41.895, -37.596, 3.5),
    (40.855, -37.596, 3.5),
    (40.855, 59.694, 3.5),
]))
fillet.Radius = 5

doc.recompute()
